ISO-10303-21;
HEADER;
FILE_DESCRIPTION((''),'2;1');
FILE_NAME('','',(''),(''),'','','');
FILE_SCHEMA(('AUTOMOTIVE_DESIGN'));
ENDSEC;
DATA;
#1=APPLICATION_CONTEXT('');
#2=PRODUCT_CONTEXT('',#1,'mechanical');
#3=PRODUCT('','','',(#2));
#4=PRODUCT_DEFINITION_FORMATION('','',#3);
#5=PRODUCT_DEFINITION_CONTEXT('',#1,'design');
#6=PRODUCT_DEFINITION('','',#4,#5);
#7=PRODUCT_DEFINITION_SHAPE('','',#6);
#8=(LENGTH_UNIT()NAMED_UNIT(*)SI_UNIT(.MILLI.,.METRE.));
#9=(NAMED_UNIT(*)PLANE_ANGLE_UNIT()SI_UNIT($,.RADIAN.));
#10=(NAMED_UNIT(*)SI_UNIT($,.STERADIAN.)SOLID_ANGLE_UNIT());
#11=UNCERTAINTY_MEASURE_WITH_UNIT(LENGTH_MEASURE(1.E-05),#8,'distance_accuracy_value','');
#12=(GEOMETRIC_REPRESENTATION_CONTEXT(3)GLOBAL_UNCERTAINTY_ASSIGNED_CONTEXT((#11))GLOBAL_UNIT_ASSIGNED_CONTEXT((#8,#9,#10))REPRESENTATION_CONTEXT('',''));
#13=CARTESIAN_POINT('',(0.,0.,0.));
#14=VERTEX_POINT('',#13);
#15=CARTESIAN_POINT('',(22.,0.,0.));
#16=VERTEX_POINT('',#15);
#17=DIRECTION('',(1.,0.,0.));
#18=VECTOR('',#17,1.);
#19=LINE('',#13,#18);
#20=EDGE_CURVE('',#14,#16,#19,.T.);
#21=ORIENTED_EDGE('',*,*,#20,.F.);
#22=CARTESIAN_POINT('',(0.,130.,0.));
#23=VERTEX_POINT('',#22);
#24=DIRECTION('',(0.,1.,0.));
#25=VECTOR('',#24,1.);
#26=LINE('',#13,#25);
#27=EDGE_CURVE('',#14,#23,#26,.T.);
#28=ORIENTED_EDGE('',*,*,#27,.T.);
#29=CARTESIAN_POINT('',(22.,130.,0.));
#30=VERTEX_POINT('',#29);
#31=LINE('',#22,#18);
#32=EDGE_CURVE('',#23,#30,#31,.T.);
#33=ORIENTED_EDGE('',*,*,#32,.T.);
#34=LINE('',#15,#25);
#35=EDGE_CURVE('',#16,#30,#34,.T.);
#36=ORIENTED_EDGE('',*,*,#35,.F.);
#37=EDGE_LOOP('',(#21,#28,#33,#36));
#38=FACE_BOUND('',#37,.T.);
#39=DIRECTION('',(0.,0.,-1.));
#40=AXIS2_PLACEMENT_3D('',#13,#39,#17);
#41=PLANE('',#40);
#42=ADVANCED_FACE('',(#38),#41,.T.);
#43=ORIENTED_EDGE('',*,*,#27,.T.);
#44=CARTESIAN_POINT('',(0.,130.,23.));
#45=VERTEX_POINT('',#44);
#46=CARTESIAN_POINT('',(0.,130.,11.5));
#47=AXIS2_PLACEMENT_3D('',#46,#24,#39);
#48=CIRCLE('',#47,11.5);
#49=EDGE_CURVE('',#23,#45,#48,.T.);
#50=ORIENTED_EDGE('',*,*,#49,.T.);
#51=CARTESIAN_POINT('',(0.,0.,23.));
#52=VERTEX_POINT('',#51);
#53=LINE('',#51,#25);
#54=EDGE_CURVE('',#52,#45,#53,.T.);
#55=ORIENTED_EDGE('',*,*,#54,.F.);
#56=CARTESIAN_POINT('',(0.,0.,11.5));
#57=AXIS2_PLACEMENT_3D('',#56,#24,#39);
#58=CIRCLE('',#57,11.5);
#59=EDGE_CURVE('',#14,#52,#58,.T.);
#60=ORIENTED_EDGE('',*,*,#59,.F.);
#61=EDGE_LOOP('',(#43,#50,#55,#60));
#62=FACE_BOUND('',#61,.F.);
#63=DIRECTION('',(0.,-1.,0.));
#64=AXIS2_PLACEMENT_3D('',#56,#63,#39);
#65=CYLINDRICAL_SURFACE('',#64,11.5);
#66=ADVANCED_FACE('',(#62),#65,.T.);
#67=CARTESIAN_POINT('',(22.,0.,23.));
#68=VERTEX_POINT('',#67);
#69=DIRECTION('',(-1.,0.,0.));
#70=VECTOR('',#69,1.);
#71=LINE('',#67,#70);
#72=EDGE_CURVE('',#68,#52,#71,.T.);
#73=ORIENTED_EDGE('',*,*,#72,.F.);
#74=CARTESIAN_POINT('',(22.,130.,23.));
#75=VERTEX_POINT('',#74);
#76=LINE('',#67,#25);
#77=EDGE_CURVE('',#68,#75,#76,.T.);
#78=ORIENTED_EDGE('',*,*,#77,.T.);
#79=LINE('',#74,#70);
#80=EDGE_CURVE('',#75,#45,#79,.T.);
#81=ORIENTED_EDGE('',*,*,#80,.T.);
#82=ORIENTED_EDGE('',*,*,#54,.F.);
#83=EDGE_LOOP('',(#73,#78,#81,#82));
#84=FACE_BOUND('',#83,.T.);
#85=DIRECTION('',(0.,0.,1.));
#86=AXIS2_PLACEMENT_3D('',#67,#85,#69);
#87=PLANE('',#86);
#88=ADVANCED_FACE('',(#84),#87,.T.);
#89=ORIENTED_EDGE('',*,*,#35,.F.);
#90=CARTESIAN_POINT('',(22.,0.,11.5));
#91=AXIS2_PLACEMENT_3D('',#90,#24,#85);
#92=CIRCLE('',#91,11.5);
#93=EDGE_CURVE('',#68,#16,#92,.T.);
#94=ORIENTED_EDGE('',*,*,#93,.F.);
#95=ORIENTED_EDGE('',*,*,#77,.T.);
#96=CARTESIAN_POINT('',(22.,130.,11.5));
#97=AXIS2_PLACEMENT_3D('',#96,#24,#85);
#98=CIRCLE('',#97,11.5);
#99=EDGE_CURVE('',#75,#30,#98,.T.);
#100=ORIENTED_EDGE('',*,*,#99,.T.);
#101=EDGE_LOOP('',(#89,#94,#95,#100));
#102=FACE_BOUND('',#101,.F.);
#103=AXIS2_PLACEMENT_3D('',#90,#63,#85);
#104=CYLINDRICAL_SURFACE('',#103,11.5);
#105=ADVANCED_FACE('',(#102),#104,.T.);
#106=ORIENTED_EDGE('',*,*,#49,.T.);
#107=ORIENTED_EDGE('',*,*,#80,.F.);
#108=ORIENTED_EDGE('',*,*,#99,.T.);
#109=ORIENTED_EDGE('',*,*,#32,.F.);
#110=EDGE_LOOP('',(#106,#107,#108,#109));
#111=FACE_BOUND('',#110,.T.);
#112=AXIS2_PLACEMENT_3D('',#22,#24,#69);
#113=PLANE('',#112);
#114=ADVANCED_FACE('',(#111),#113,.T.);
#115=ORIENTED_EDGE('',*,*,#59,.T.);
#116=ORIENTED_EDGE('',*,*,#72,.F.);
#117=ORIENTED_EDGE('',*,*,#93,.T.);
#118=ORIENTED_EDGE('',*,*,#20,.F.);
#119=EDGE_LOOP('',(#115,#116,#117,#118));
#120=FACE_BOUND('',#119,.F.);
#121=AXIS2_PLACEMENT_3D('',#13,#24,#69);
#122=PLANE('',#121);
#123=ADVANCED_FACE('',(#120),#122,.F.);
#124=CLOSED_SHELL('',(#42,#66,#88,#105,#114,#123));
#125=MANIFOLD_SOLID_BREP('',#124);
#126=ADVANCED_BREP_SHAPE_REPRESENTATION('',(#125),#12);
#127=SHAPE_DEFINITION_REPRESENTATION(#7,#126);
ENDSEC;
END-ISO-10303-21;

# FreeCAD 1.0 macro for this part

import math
import FreeCAD as App
import Part
import Sketcher
from FreeCAD import Vector

doc = App.newDocument("Part")
body = doc.addObject("PartDesign::Body", "Body")

# Sketch on XZ plane
sketch1 = body.newObject("Sketcher::SketchObject", "Sketch")
sketch1.AttachmentSupport = (doc.getObject("XZ_Plane"), [""])
sketch1.MapMode = "FlatFace"
sketch1.addGeometry([
    Part.LineSegment(Vector(22, 0, 0), Vector(0, 0, 0)),
    Part.ArcOfCircle(Part.Circle(Vector(0, 12, 0), Vector(0, 0, 1), 12), math.radians(90), math.radians(270)),
    Part.LineSegment(Vector(0, 23, 0), Vector(22, 23, 0)),
    Part.ArcOfCircle(Part.Circle(Vector(22, 12, 0), Vector(0, 0, 1), 12), math.radians(-90), math.radians(90)),
], False)
sketch1.addConstraint([
    Sketcher.Constraint("Tangent", 0, 2, 1, 2),
    Sketcher.Constraint("Tangent", 1, 1, 2, 1),
    Sketcher.Constraint("Tangent", 2, 2, 3, 2),
    Sketcher.Constraint("Tangent", 3, 1, 0, 1),
    Sketcher.Constraint("Horizontal", 0),
    Sketcher.Constraint("Horizontal", 2),
    Sketcher.Constraint("Coincident", 0, 2, -1, 1),
    Sketcher.Constraint("Radius", 1, 11.5),
    Sketcher.Constraint("DistanceX", 0, 2, 0, 1, 22.0),
])
pad1 = body.newObject("PartDesign::Pad", "Pad")
pad1.Profile = sketch1
pad1.Length = 130
pad1.Reversed = True

doc.recompute()
